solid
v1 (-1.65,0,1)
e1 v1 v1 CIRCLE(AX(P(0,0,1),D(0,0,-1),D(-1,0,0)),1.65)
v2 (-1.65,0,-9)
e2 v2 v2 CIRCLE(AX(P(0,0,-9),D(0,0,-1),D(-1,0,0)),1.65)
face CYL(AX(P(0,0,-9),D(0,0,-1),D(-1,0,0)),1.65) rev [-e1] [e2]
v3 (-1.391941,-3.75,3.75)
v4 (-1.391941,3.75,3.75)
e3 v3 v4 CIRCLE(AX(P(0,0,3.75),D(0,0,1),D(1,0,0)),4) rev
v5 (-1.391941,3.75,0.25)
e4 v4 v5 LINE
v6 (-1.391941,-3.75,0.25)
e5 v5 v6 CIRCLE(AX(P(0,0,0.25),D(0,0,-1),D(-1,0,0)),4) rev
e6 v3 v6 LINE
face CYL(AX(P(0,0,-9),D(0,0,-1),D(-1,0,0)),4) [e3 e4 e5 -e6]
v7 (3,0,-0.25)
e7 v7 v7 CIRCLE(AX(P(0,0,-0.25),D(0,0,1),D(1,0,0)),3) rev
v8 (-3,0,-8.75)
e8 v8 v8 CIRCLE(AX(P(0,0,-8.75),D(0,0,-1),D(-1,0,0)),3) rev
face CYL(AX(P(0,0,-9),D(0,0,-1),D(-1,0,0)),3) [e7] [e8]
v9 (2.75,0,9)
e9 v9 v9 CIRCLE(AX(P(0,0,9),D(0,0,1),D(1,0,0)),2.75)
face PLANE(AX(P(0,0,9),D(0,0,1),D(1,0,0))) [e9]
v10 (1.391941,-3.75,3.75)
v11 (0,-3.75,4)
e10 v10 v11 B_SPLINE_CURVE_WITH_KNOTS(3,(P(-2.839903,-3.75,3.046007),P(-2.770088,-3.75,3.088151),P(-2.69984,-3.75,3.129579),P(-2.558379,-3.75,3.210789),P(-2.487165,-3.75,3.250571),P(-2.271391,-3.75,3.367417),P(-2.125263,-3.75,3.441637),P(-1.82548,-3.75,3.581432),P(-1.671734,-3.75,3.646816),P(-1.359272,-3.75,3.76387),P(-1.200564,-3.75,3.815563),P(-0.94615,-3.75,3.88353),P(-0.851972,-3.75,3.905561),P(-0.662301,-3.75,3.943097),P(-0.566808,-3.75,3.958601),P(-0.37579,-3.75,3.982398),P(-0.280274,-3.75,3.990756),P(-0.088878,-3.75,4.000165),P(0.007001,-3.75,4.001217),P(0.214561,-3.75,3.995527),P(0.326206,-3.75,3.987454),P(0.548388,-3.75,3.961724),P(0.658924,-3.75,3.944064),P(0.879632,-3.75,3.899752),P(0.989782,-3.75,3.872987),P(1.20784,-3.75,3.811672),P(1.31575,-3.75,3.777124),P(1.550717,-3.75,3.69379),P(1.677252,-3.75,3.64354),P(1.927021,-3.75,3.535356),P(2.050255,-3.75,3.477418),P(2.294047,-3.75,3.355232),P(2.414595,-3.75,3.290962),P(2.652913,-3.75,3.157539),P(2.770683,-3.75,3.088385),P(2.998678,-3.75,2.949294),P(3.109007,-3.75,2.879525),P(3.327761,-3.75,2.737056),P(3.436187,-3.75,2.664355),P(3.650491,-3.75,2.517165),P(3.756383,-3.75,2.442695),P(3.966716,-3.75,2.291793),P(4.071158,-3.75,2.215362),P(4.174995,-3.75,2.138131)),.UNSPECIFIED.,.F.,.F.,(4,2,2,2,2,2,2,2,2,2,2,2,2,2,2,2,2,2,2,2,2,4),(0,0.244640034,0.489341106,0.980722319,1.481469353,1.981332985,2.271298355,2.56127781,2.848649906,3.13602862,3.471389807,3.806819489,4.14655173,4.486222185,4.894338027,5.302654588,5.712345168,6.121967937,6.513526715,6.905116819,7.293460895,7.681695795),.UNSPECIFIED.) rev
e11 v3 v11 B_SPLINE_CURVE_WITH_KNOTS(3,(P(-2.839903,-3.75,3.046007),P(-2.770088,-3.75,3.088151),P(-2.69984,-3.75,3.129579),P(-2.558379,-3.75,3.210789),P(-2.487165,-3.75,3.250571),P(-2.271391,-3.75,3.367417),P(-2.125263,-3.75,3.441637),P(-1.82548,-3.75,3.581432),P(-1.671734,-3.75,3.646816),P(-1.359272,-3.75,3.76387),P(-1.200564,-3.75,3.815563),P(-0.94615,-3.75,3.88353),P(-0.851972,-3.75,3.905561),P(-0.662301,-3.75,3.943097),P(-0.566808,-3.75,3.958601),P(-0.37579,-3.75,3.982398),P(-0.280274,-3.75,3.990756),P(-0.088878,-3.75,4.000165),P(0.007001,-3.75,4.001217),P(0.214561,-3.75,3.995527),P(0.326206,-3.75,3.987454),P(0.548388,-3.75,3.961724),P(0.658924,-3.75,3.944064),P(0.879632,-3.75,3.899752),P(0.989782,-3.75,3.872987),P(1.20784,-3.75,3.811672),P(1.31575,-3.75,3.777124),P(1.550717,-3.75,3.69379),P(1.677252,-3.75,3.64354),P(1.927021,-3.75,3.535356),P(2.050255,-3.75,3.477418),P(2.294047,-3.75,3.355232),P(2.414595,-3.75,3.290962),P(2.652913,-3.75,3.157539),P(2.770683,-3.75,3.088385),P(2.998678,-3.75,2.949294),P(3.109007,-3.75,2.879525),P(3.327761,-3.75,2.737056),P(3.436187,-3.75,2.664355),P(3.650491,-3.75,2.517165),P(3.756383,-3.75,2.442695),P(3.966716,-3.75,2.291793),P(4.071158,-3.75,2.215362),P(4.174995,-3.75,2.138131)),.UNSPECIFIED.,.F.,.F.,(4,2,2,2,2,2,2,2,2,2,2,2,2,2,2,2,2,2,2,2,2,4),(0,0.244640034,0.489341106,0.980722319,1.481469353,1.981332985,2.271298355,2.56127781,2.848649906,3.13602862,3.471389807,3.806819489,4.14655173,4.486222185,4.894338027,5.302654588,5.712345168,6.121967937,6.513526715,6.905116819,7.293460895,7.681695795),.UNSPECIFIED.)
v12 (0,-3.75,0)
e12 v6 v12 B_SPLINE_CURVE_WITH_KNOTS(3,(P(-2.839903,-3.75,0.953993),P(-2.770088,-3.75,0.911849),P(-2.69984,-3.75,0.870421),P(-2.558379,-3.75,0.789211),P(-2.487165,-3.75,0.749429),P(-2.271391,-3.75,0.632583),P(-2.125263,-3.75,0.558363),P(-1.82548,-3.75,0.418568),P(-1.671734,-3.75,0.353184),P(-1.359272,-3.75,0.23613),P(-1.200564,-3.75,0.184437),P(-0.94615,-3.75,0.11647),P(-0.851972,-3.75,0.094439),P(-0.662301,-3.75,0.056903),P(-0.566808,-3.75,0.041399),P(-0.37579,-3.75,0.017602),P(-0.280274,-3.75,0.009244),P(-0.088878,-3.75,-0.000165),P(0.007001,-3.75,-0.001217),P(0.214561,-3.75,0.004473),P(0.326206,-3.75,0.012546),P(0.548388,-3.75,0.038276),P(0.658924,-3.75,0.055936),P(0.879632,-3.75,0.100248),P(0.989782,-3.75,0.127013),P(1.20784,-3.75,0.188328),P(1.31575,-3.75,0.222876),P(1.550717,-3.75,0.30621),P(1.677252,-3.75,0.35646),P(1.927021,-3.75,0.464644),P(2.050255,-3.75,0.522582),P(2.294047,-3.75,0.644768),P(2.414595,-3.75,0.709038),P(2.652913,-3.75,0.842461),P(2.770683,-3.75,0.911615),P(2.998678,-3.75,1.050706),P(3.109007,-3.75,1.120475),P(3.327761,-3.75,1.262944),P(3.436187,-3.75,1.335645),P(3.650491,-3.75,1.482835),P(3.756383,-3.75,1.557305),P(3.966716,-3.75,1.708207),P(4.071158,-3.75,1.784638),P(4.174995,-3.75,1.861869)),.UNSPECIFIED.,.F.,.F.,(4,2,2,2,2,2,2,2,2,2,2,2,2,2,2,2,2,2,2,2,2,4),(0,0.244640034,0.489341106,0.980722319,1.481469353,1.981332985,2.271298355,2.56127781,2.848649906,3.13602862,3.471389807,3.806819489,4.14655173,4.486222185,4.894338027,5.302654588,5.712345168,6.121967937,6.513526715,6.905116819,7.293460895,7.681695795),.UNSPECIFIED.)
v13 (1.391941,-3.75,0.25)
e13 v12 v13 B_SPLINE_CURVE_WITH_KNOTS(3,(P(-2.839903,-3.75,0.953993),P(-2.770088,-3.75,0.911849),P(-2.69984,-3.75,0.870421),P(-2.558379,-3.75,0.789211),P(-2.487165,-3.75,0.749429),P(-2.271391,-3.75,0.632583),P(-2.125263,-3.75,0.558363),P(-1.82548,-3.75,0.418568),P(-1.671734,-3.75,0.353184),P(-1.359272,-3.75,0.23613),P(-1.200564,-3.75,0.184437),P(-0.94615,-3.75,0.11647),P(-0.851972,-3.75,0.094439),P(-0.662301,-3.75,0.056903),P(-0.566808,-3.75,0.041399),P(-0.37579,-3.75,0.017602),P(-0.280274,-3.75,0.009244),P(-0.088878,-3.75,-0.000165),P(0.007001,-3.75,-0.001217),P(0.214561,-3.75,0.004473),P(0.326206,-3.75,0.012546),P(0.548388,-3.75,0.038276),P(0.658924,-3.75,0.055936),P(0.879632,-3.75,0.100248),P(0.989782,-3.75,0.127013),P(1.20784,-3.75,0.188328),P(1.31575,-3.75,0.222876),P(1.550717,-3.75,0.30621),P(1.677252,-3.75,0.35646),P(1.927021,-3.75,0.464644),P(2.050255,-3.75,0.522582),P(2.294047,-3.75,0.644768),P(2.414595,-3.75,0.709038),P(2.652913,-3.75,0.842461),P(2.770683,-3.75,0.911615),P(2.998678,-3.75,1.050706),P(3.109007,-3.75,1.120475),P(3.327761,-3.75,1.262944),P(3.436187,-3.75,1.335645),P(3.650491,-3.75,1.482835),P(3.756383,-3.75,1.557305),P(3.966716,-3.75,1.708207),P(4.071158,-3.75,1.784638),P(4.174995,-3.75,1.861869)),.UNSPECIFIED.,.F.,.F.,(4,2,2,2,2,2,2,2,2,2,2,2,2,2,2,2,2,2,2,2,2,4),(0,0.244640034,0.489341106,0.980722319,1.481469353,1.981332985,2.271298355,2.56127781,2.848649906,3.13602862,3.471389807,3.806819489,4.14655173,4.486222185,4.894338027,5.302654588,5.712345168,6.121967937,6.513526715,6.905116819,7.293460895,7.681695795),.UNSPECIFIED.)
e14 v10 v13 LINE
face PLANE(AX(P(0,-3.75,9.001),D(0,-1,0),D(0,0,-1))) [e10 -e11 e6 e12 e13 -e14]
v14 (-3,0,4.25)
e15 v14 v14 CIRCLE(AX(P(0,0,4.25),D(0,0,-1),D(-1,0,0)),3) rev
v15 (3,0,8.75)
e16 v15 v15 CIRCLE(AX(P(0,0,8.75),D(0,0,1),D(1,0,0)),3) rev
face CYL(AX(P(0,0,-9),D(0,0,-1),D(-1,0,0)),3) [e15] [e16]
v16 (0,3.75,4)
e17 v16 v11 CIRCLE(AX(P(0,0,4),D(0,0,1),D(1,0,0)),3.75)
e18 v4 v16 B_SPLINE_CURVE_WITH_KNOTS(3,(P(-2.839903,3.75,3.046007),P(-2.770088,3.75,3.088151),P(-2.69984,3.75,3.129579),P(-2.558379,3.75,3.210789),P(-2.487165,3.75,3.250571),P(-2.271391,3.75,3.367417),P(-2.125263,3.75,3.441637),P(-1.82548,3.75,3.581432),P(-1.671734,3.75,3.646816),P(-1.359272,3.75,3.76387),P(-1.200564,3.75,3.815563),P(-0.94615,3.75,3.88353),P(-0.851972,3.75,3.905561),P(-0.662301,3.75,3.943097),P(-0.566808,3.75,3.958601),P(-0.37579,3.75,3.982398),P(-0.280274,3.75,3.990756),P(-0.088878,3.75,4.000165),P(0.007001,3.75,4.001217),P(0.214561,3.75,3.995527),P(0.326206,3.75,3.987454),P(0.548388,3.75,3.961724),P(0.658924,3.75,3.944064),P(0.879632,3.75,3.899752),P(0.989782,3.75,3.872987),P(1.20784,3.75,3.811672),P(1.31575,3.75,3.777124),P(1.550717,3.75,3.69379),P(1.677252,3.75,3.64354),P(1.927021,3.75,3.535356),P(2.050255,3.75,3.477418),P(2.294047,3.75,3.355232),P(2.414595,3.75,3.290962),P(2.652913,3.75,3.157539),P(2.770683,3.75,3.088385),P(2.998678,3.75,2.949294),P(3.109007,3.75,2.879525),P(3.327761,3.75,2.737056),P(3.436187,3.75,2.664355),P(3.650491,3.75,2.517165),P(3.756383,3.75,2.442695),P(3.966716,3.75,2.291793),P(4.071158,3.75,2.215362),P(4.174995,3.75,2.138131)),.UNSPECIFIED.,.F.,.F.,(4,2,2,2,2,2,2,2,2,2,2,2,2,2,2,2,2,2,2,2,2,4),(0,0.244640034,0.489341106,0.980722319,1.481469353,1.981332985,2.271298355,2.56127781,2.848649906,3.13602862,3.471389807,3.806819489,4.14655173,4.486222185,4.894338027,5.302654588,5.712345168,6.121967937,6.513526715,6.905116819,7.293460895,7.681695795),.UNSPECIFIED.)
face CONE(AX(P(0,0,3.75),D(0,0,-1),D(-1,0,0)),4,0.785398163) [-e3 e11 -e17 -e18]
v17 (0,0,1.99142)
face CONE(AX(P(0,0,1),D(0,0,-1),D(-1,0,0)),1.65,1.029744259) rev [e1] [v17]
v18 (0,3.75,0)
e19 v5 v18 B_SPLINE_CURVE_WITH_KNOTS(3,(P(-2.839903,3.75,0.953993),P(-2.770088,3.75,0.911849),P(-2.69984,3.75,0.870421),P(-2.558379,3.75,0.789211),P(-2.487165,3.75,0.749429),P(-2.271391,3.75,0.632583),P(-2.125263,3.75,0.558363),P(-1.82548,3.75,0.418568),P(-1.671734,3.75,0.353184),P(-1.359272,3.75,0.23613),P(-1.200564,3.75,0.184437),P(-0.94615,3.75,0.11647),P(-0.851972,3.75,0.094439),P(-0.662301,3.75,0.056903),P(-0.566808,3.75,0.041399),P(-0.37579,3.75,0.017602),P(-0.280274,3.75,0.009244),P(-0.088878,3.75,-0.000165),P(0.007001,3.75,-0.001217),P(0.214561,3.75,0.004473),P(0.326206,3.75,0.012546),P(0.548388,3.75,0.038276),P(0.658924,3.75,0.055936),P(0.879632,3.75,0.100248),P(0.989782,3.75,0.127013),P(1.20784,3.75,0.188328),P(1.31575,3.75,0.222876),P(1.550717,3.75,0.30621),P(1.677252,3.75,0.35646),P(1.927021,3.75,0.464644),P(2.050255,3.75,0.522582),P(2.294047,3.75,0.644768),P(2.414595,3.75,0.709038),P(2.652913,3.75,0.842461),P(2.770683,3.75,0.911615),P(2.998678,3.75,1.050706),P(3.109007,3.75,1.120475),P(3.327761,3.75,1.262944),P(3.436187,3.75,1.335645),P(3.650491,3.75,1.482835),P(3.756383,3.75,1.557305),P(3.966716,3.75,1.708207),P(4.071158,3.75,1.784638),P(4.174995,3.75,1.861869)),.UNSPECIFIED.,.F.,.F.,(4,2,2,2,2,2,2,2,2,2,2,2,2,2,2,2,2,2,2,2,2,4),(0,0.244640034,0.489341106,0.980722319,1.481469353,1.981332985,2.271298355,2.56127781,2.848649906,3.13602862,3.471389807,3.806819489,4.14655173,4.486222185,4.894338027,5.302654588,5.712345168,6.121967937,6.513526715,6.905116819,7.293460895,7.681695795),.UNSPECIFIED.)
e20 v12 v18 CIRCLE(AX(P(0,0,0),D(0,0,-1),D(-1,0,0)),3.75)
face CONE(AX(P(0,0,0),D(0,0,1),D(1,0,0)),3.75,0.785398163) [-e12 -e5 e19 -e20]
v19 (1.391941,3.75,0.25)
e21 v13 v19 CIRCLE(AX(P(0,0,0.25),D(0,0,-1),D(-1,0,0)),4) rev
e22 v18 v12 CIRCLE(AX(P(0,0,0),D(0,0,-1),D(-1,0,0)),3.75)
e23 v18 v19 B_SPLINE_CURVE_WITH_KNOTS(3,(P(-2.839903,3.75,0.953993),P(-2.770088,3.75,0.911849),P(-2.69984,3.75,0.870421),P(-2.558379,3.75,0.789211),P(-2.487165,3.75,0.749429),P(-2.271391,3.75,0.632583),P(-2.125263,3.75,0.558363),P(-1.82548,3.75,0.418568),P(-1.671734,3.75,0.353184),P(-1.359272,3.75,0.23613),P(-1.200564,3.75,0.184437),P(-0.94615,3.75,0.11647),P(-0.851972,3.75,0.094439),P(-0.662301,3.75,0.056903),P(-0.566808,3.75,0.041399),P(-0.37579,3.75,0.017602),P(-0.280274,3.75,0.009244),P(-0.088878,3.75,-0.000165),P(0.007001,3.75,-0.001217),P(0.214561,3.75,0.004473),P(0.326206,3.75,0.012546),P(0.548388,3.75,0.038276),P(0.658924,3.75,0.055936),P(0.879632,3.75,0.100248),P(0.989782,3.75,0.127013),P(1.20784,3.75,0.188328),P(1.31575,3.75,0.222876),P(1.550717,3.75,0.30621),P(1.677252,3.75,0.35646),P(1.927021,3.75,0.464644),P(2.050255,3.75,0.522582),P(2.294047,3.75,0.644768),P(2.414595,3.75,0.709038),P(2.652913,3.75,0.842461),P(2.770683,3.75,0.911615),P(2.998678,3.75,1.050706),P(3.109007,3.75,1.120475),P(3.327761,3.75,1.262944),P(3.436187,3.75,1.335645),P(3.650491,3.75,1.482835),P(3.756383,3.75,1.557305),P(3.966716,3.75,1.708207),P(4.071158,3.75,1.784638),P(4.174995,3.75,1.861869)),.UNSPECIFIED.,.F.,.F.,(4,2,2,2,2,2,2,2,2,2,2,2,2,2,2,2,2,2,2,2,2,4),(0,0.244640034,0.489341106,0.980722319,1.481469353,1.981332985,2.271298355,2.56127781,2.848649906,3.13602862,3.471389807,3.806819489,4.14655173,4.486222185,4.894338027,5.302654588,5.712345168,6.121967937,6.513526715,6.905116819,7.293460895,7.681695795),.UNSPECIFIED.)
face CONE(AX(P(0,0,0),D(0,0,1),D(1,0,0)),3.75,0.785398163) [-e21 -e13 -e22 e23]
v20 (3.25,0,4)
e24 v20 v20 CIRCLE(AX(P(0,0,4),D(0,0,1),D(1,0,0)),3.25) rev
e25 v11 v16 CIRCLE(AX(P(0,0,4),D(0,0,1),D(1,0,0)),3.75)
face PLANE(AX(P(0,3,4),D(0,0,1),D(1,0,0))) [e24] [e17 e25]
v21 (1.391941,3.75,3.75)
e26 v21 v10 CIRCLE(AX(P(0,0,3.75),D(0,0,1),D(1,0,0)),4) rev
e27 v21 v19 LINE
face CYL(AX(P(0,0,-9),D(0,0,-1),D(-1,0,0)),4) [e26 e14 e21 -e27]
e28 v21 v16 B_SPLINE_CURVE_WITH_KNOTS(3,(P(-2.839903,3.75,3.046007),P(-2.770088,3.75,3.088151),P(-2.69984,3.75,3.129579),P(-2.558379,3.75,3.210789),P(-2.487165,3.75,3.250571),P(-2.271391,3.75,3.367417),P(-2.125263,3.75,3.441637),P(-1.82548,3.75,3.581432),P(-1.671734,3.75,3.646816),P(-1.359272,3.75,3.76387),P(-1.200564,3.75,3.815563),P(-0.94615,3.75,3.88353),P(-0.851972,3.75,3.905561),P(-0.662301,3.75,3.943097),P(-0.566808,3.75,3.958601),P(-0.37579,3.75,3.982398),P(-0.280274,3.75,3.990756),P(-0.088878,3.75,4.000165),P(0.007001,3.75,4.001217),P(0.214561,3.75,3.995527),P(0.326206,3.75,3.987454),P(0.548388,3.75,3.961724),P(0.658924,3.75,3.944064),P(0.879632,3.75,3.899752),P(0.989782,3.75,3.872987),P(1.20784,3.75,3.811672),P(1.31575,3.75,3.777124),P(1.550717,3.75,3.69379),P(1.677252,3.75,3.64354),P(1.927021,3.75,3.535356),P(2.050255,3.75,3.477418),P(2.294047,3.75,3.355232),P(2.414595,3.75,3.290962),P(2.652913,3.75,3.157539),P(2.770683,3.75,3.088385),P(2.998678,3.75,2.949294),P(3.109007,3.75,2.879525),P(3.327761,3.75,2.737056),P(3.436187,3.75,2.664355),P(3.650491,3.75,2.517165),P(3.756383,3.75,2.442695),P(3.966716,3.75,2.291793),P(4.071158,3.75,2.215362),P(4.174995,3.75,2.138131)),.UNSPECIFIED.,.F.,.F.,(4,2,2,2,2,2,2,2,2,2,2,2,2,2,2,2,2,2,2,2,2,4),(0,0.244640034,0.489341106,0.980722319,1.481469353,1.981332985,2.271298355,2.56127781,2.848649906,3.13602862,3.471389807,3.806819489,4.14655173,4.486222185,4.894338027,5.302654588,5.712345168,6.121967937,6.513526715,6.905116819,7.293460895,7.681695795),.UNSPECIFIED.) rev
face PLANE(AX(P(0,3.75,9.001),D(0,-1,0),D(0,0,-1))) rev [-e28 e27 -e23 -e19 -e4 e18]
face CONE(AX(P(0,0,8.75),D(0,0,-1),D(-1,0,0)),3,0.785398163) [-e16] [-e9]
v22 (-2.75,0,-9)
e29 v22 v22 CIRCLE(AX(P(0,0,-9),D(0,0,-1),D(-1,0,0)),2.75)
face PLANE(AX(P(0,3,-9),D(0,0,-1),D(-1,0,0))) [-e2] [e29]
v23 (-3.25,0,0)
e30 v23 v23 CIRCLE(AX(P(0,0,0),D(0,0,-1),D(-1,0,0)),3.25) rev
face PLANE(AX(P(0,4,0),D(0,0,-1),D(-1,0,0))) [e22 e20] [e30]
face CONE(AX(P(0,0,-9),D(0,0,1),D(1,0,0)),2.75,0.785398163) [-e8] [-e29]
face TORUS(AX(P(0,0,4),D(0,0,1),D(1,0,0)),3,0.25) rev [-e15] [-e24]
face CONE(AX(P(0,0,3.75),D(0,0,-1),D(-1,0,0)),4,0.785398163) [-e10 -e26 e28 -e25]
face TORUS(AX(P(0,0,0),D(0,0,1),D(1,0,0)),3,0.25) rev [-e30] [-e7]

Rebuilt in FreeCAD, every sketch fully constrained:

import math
import FreeCAD as App
import Part
import Sketcher
Q = App.Units.Quantity


def edges_at(feature, points):
    """Names of the edges that pass closest to the given points."""
    edges = feature.Shape.Edges
    near = lambda p: min(range(len(edges)), key=lambda i: edges[i].distToShape(Part.Vertex(*p))[0])
    return sorted({f"Edge{near(p) + 1}" for p in points})


def add_polygon(sketch, points):
    """Adds a closed chain of lines whose ends are joined by coincident constraints."""
    first, n = sketch.GeometryCount, len(points)
    for a, b in zip(points, points[1:] + points[:1]):
        sketch.addGeometry(Part.LineSegment(App.Vector(*a, 0), App.Vector(*b, 0)), False)
    for i in range(n):
        sketch.addConstraint(Sketcher.Constraint("Coincident", first + i, 2, first + (i + 1) % n, 1))

doc = App.newDocument("Part")
body = doc.addObject("PartDesign::Body", "Body")

sketch1 = body.newObject("Sketcher::SketchObject", "Sketch")
sketch1.AttachmentSupport = (doc.getObject("YZ_Plane"), [""])
sketch1.MapMode = "FlatFace"
add_polygon(sketch1, [(4, 0), (4, 4), (3, 4), (3, 9), (0, 9), (0, -9), (3, -9), (3, 0)])
sketch1.addConstraint(Sketcher.Constraint("Vertical", 0))
sketch1.addConstraint(Sketcher.Constraint("Horizontal", 1))
sketch1.addConstraint(Sketcher.Constraint("Vertical", 2))
sketch1.addConstraint(Sketcher.Constraint("Horizontal", 3))
sketch1.addConstraint(Sketcher.Constraint("Vertical", 4))
sketch1.addConstraint(Sketcher.Constraint("Horizontal", 5))
sketch1.addConstraint(Sketcher.Constraint("Vertical", 6))
sketch1.addConstraint(Sketcher.Constraint("Horizontal", 7))
sketch1.addConstraint(Sketcher.Constraint("Symmetric", 3, 2, 4, 2, -1, 1))
sketch1.addConstraint(Sketcher.Constraint("PointOnObject", 6, 2, -1))
sketch1.addConstraint(Sketcher.Constraint("Vertical", 2, 2, 5, 2))
sketch1.addConstraint(Sketcher.Constraint("DistanceX", 1, 2, 1, 1, Q("1 mm")))
sketch1.addConstraint(Sketcher.Constraint("DistanceX", 3, 2, 3, 1, Q("3 mm")))
sketch1.addConstraint(Sketcher.Constraint("DistanceY", 0, 1, 0, 2, Q("4 mm")))
sketch1.addConstraint(Sketcher.Constraint("DistanceY", 2, 1, 2, 2, Q("5 mm")))
revolution = body.newObject("PartDesign::Revolution", "Revolution")
revolution.Profile = sketch1
revolution.ReferenceAxis = (sketch1, ["V_Axis"])
revolution.Angle = 360

sketch2 = body.newObject("Sketcher::SketchObject", "Sketch001")
sketch2.AttachmentSupport = (doc.getObject("XY_Plane"), [""])
sketch2.MapMode = "FlatFace"
sketch2.AttachmentOffset = App.Placement(App.Vector(0, 0, -9), App.Rotation())
sketch2.addGeometry(Part.Circle(App.Vector(0, 0, 0), App.Vector(0, 0, 1), 1.6), False)
sketch2.addConstraint(Sketcher.Constraint("Coincident", 0, 3, -1, 1))
sketch2.addConstraint(Sketcher.Constraint("Diameter", 0, Q("3.3 mm")))
doc.recompute()
hole = body.newObject("PartDesign::Hole", "Hole")
hole.Profile = sketch2
hole.ThreadType = "None"
hole.Diameter = 3.3
hole.DepthType = "Dimension"
hole.Depth = 10
hole.DrillPoint = "Angled"
hole.DrillPointAngle = 118
hole.Reversed = True

sketch3 = body.newObject("Sketcher::SketchObject", "Sketch002")
sketch3.AttachmentSupport = (doc.getObject("YZ_Plane"), [""])
sketch3.MapMode = "FlatFace"
sketch3.addGeometry(Part.Circle(App.Vector(3, 4, 0), App.Vector(0, 0, 1), 0.25), False)
sketch3.addGeometry(Part.Circle(App.Vector(3, 0, 0), App.Vector(0, 0, 1), 0.25), False)
sketch3.addConstraint(Sketcher.Constraint("Equal", 0, 1))
sketch3.addConstraint(Sketcher.Constraint("PointOnObject", 1, 3, -1))
sketch3.addConstraint(Sketcher.Constraint("Vertical", 0, 3, 1, 3))
sketch3.addConstraint(Sketcher.Constraint("Diameter", 0, Q("0.5 mm")))
sketch3.addConstraint(Sketcher.Constraint("DistanceX", -1, 1, 0, 3, Q("3 mm")))
sketch3.addConstraint(Sketcher.Constraint("DistanceY", -1, 1, 0, 3, Q("4 mm")))
groove = body.newObject("PartDesign::Groove", "Groove")
groove.Profile = sketch3
groove.ReferenceAxis = (sketch3, ["V_Axis"])
groove.Angle = 360
doc.recompute()

chamfer = body.newObject("PartDesign::Chamfer", "Chamfer")
chamfer.Base = (groove, edges_at(groove, [
    (3, 0, 9),
    (3, 0, -9),
    (4, 0, 0),
    (4, 0, 4),
]))
chamfer.Size = 0.25

sketch4 = body.newObject("Sketcher::SketchObject", "Sketch003")
sketch4.AttachmentSupport = (doc.getObject("XY_Plane"), [""])
sketch4.MapMode = "FlatFace"
sketch4.addGeometry(Part.ArcOfCircle(Part.Circle(App.Vector(0, 0, 0), App.Vector(0, 0, 1), 4), math.radians(70), math.radians(110)), False)
sketch4.addGeometry(Part.LineSegment(App.Vector(1.4, 3.8, 0), App.Vector(-1.4, 3.8, 0)), False)
sketch4.addConstraint(Sketcher.Constraint("Coincident", 0, 1, 1, 1))
sketch4.addConstraint(Sketcher.Constraint("Coincident", 1, 2, 0, 2))
sketch4.addConstraint(Sketcher.Constraint("Horizontal", 1))
sketch4.addConstraint(Sketcher.Constraint("Coincident", 0, 3, -1, 1))
sketch4.addConstraint(Sketcher.Constraint("Radius", 0, Q("4 mm")))
sketch4.addConstraint(Sketcher.Constraint("DistanceY", -1, 1, 0, 1, Q("3.75 mm")))
pocket1 = body.newObject("PartDesign::Pocket", "Pocket")
pocket1.Profile = sketch4
pocket1.Length = 4
pocket1.Reversed = True

sketch5 = body.newObject("Sketcher::SketchObject", "Sketch004")
sketch5.AttachmentSupport = (doc.getObject("XY_Plane"), [""])
sketch5.MapMode = "FlatFace"
sketch5.addGeometry(Part.LineSegment(App.Vector(-1.4, -3.8, 0), App.Vector(1.4, -3.8, 0)), False)
sketch5.addGeometry(Part.ArcOfCircle(Part.Circle(App.Vector(0, 0, 0), App.Vector(0, 0, 1), 4), math.radians(-110), math.radians(-70)), False)
sketch5.addConstraint(Sketcher.Constraint("Coincident", 0, 1, 1, 1))
sketch5.addConstraint(Sketcher.Constraint("Coincident", 1, 2, 0, 2))
sketch5.addConstraint(Sketcher.Constraint("Horizontal", 0))
sketch5.addConstraint(Sketcher.Constraint("Coincident", 1, 3, -1, 1))
sketch5.addConstraint(Sketcher.Constraint("Radius", 1, Q("4 mm")))
sketch5.addConstraint(Sketcher.Constraint("DistanceY", 0, 1, -1, 1, Q("3.75 mm")))
pocket2 = body.newObject("PartDesign::Pocket", "Pocket001")
pocket2.Profile = sketch5
pocket2.Length = 4
pocket2.Reversed = True

doc.recompute()
